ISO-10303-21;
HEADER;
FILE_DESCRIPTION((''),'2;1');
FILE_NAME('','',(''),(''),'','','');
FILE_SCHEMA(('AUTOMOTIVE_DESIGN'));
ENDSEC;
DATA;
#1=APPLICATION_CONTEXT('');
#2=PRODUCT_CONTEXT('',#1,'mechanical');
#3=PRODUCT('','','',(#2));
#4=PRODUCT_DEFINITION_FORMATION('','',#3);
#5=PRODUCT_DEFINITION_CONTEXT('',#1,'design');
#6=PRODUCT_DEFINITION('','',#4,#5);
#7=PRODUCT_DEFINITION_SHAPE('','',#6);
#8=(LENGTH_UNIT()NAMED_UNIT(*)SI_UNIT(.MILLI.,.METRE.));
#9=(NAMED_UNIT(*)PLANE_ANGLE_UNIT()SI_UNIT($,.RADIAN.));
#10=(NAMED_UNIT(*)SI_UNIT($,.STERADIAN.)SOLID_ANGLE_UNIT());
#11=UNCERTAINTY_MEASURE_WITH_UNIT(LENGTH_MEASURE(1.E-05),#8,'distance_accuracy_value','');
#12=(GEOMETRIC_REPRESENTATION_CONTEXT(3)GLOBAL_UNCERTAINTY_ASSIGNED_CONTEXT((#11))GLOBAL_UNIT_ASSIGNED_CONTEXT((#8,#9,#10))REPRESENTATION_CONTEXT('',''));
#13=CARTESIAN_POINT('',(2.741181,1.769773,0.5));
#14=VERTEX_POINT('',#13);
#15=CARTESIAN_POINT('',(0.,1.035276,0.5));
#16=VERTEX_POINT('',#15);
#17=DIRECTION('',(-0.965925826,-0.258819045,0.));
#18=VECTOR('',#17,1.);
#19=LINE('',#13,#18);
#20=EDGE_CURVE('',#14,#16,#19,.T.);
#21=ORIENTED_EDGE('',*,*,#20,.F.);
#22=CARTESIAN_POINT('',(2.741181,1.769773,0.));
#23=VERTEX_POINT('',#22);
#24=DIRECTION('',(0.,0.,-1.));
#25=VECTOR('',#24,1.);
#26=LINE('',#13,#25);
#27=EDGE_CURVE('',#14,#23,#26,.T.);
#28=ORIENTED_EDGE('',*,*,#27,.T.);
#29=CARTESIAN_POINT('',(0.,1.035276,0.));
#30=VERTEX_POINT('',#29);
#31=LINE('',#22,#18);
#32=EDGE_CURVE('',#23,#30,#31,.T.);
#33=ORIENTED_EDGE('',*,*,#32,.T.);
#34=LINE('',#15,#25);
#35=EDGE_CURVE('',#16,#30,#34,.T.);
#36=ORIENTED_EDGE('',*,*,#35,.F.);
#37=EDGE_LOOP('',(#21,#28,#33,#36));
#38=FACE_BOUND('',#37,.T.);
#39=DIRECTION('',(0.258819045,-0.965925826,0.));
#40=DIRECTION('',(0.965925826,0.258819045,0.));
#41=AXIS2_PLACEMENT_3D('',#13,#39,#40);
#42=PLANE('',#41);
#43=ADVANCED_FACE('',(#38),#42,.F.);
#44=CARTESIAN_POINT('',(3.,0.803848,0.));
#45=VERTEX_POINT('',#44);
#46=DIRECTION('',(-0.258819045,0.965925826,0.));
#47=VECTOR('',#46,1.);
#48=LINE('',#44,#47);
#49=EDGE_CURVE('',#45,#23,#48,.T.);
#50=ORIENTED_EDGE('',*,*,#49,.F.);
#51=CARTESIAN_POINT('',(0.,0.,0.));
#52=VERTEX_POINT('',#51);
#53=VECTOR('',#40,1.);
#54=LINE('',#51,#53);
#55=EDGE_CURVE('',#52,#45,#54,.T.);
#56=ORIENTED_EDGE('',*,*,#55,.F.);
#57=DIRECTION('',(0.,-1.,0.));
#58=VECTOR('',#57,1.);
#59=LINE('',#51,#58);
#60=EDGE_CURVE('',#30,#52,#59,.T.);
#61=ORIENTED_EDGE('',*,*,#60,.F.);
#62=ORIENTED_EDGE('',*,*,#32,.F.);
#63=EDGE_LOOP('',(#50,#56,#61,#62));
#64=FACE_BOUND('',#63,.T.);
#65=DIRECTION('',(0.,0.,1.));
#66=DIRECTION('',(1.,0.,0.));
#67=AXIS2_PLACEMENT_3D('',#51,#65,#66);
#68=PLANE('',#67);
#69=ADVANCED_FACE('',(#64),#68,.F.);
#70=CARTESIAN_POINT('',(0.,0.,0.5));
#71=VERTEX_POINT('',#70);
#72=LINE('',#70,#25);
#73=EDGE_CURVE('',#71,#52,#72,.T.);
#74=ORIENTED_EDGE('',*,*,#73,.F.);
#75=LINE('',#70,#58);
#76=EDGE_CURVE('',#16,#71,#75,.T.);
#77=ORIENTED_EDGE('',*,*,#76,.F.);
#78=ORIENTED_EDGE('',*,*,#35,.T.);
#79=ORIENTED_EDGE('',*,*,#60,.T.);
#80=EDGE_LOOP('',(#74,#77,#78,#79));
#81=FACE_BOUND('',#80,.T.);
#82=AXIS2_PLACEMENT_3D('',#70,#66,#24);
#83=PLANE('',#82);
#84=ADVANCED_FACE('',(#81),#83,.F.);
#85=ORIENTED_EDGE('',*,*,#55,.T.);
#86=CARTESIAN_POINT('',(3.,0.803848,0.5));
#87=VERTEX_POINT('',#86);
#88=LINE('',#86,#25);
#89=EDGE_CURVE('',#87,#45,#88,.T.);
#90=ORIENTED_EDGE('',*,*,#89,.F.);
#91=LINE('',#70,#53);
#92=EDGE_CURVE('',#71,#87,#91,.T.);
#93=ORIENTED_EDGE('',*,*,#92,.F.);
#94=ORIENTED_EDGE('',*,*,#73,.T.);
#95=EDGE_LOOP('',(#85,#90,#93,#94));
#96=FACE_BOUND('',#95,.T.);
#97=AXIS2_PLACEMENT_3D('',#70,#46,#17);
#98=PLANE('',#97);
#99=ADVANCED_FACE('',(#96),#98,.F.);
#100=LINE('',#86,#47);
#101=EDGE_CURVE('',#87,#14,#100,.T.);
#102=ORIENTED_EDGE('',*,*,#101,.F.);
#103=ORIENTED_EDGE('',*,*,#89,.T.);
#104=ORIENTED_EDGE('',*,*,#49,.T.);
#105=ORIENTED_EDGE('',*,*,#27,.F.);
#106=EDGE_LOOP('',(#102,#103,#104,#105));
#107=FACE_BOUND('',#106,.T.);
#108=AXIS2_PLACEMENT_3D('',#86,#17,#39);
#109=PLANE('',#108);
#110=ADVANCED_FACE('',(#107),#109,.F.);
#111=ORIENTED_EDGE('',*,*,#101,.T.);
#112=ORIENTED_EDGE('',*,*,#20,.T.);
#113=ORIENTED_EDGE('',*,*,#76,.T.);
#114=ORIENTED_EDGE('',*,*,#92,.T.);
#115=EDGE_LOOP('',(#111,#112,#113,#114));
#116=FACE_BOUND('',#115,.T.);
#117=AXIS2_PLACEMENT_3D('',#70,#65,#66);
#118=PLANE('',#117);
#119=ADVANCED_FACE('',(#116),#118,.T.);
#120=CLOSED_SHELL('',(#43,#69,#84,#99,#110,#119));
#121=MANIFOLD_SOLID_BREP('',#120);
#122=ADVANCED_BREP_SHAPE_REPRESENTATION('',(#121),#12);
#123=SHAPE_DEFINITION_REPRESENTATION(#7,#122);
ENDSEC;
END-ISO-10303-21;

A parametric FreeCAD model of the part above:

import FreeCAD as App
import Part
import Sketcher

V = App.Vector
Q = App.Units.Quantity


def add_polygon(sketch, points):
    """Adds a closed chain of lines whose ends are joined by coincident constraints."""
    first, n = sketch.GeometryCount, len(points)
    for a, b in zip(points, points[1:] + points[:1]):
        sketch.addGeometry(Part.LineSegment(App.Vector(*a, 0), App.Vector(*b, 0)), False)
    for i in range(n):
        sketch.addConstraint(Sketcher.Constraint("Coincident", first + i, 2, first + (i + 1) % n, 1))

doc = App.newDocument("Part")
params = doc.addObject("Spreadsheet::Sheet", "Params")
for row, (alias, value) in enumerate([
    ("sketch1_length", "1 mm"),
    ("pad1_length", "0.5 mm"),
], start=1):
    params.set(f"A{row}", alias)
    params.set(f"B{row}", "=" + value)
    params.setAlias(f"B{row}", alias)

body = doc.addObject("PartDesign::Body", "Body")

sketch1 = body.newObject("Sketcher::SketchObject", "Sketch")
sketch1.AttachmentSupport = (doc.getObject("XY_Plane"), [""])
sketch1.MapMode = "FlatFace"
add_polygon(sketch1, [(0, 1.035276), (0, 0), (3, 0.803848), (2.741181, 1.769773)])
sketch1.addConstraint(Sketcher.Constraint("Vertical", 0))
sketch1.addConstraint(Sketcher.Constraint("Coincident", 0, 2, -1, 1))
sketch1.addConstraint(Sketcher.Constraint("Perpendicular", 1, 2))
sketch1.addConstraint(Sketcher.Constraint("Perpendicular", 2, 3))
sketch1.addConstraint(Sketcher.Constraint("Angle", 1, Q("15 deg")))
sketch1.addConstraint(Sketcher.Constraint("Distance", 2, Q("1 mm")))
sketch1.addConstraint(Sketcher.Constraint("DistanceX", -1, 1, 1, 2, Q("3 mm")))
sketch1.setExpression("Constraints[9]", "Params.sketch1_length")
pad1 = body.newObject("PartDesign::Pad", "Pad")
pad1.Profile = sketch1
pad1.setExpression("Length", "Params.pad1_length")

doc.recompute()
